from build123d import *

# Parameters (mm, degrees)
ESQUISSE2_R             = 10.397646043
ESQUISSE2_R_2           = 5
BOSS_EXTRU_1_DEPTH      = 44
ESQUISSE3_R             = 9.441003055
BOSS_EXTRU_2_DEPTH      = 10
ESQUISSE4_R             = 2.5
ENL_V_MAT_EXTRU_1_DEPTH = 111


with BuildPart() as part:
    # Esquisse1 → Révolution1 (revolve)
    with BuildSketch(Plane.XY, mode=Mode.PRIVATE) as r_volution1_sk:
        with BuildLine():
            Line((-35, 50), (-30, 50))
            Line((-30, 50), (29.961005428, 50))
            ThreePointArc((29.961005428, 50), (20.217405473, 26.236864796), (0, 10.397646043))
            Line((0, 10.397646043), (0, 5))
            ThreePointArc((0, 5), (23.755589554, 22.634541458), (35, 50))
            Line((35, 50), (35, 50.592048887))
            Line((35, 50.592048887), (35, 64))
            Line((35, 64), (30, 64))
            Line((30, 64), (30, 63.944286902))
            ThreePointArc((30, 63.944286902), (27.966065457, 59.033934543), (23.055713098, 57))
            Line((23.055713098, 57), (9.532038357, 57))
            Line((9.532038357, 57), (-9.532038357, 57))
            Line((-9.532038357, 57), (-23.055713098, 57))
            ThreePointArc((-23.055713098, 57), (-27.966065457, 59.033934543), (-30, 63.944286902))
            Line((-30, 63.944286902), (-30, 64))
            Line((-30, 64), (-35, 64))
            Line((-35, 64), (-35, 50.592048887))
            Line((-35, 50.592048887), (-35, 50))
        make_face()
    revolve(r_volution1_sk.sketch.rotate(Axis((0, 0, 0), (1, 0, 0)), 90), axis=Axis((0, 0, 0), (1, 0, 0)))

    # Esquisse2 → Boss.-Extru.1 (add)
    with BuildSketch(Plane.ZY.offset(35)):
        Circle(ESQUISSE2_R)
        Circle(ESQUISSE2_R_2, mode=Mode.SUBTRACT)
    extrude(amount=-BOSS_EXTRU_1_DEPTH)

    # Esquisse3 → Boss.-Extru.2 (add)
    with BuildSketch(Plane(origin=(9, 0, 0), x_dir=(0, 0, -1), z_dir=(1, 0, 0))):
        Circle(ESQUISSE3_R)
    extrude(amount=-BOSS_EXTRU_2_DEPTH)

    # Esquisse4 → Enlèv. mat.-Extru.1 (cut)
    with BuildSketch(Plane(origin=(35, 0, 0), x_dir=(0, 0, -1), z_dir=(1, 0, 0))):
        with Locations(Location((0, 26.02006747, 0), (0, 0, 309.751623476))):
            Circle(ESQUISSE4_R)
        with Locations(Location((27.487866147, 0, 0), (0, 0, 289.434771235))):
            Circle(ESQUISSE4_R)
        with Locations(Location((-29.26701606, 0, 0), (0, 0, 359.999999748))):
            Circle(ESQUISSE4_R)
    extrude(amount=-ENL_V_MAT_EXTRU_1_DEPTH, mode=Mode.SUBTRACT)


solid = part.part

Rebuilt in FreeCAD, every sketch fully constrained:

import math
import FreeCAD as App
import Part
import Sketcher

doc = App.newDocument("Part")
params = doc.addObject("Spreadsheet::Sheet", "Params")
for row, (alias, value) in enumerate([
    ("sketch1_width", "5 mm"),
    ("sketch1_height", "14 mm"),
    ("revolution_angle", "360 deg"),
    ("sketch2_diameter", "10 mm"),
    ("pad1_length", "44 mm"),
    ("pad2_length", "10 mm"),
    ("sketch4_diameter", "5 mm"),
    ("pocket1_length", "111 mm"),
], start=1):
    params.set(f"A{row}", alias)
    params.set(f"B{row}", "=" + value)
    params.setAlias(f"B{row}", alias)

body = doc.addObject("PartDesign::Body", "Body")

# Sketch on XY plane
sketch1 = body.newObject("Sketcher::SketchObject", "Sketch")
sketch1.AttachmentSupport = (doc.getObject("XY_Plane"), [""])
sketch1.MapMode = "FlatFace"
sketch1.addGeometry(Part.LineSegment(App.Vector(-35, 50, 0), App.Vector(29.96, 50, 0)), False)
sketch1.addGeometry(Part.ArcOfCircle(Part.Circle(App.Vector(-19.84, 56.54, 0), App.Vector(0, 0, 1), 50.22), math.radians(-67), math.radians(-7)), False)
sketch1.addGeometry(Part.LineSegment(App.Vector(0, 10.4, 0), App.Vector(0, 5, 0)), False)
sketch1.addGeometry(Part.ArcOfCircle(Part.Circle(App.Vector(-19.84, 56.54, 0), App.Vector(0, 0, 1), 55.22), math.radians(-69), math.radians(-7)), False)
sketch1.addGeometry(Part.LineSegment(App.Vector(35, 50, 0), App.Vector(35, 64, 0)), False)
sketch1.addGeometry(Part.LineSegment(App.Vector(35, 64, 0), App.Vector(30, 64, 0)), False)
sketch1.addGeometry(Part.LineSegment(App.Vector(30, 64, 0), App.Vector(30, 63.94, 0)), False)
sketch1.addGeometry(Part.ArcOfCircle(Part.Circle(App.Vector(23.06, 63.94, 0), App.Vector(0, 0, 1), 6.94), math.radians(-90), math.radians(0)), False)
sketch1.addGeometry(Part.LineSegment(App.Vector(23.06, 57, 0), App.Vector(-23.06, 57, 0)), False)
sketch1.addGeometry(Part.ArcOfCircle(Part.Circle(App.Vector(-23.06, 63.94, 0), App.Vector(0, 0, 1), 6.94), math.radians(180), math.radians(270)), False)
sketch1.addGeometry(Part.LineSegment(App.Vector(-30, 63.94, 0), App.Vector(-30, 64, 0)), False)
sketch1.addGeometry(Part.LineSegment(App.Vector(-30, 64, 0), App.Vector(-35, 64, 0)), False)
sketch1.addGeometry(Part.LineSegment(App.Vector(-35, 64, 0), App.Vector(-35, 50, 0)), False)
sketch1.addConstraint(Sketcher.Constraint("Coincident", 0, 2, 1, 2))
sketch1.addConstraint(Sketcher.Constraint("Coincident", 1, 1, 2, 1))
sketch1.addConstraint(Sketcher.Constraint("Coincident", 2, 2, 3, 1))
sketch1.addConstraint(Sketcher.Constraint("Coincident", 3, 2, 4, 1))
sketch1.addConstraint(Sketcher.Constraint("Coincident", 4, 2, 5, 1))
sketch1.addConstraint(Sketcher.Constraint("Coincident", 5, 2, 6, 1))
sketch1.addConstraint(Sketcher.Constraint("Tangent", 6, 2, 7, 2))
sketch1.addConstraint(Sketcher.Constraint("Tangent", 7, 1, 8, 1))
sketch1.addConstraint(Sketcher.Constraint("Tangent", 8, 2, 9, 2))
sketch1.addConstraint(Sketcher.Constraint("Tangent", 9, 1, 10, 1))
sketch1.addConstraint(Sketcher.Constraint("Coincident", 10, 2, 11, 1))
sketch1.addConstraint(Sketcher.Constraint("Coincident", 11, 2, 12, 1))
sketch1.addConstraint(Sketcher.Constraint("Coincident", 12, 2, 0, 1))
sketch1.addConstraint(Sketcher.Constraint("Horizontal", 0))
sketch1.addConstraint(Sketcher.Constraint("Vertical", 2))
sketch1.addConstraint(Sketcher.Constraint("Vertical", 4))
sketch1.addConstraint(Sketcher.Constraint("Horizontal", 5))
sketch1.addConstraint(Sketcher.Constraint("Vertical", 6))
sketch1.addConstraint(Sketcher.Constraint("Horizontal", 8))
sketch1.addConstraint(Sketcher.Constraint("Vertical", 10))
sketch1.addConstraint(Sketcher.Constraint("Horizontal", 11))
sketch1.addConstraint(Sketcher.Constraint("Vertical", 12))
sketch1.addConstraint(Sketcher.Constraint("Coincident", 3, 3, 1, 3))
sketch1.addConstraint(Sketcher.Constraint("Equal", 7, 9))
sketch1.addConstraint(Sketcher.Constraint("Symmetric", 5, 2, 10, 2, -2))
sketch1.addConstraint(Sketcher.Constraint("Symmetric", 3, 2, 12, 2, -2))
sketch1.addConstraint(Sketcher.Constraint("PointOnObject", 1, 1, -2))
sketch1.addConstraint(Sketcher.Constraint("DistanceX", 5, 2, 5, 1, 5.0))
sketch1.addConstraint(Sketcher.Constraint("DistanceY", 4, 1, 4, 2, 14.0))
sketch1.addConstraint(Sketcher.Constraint("DistanceY", -1, 1, 0, 2, 50.0))
sketch1.addConstraint(Sketcher.Constraint("DistanceY", -1, 1, 2, 2, 5.0))
sketch1.addConstraint(Sketcher.Constraint("DistanceX", -1, 1, 3, 2, 35.0))
sketch1.addConstraint(Sketcher.Constraint("DistanceY", -1, 1, 7, 1, 57.0))
sketch1.addConstraint(Sketcher.Constraint("Radius", 1, 50.224532))
sketch1.addConstraint(Sketcher.Constraint("Radius", 3, 55.224532))
sketch1.addConstraint(Sketcher.Constraint("Radius", 7, 6.944287))
sketch1.setExpression("Constraints[27]", "Params.sketch1_width")
sketch1.setExpression("Constraints[28]", "Params.sketch1_height")
revolution = body.newObject("PartDesign::Revolution", "Revolution")
revolution.Profile = sketch1
revolution.ReferenceAxis = (sketch1, ["H_Axis"])
revolution.setExpression("Angle", "Params.revolution_angle")

# Sketch on YZ plane
sketch2 = body.newObject("Sketcher::SketchObject", "Sketch001")
sketch2.AttachmentSupport = (doc.getObject("YZ_Plane"), [""])
sketch2.MapMode = "FlatFace"
sketch2.AttachmentOffset = App.Placement(App.Vector(0, 0, -35), App.Rotation())
sketch2.addGeometry(Part.Circle(App.Vector(0, 0, 0), App.Vector(0, 0, 1), 10), False)
sketch2.addGeometry(Part.Circle(App.Vector(0, 0, 0), App.Vector(0, 0, 1), 5), False)
sketch2.addConstraint(Sketcher.Constraint("Coincident", 0, 3, -1, 1))
sketch2.addConstraint(Sketcher.Constraint("Coincident", 1, 3, -1, 1))
sketch2.addConstraint(Sketcher.Constraint("Diameter", 1, 10.0))
sketch2.addConstraint(Sketcher.Constraint("Diameter", 0, 20.795292))
sketch2.setExpression("Constraints[2]", "Params.sketch2_diameter")
pad1 = body.newObject("PartDesign::Pad", "Pad")
pad1.Profile = sketch2
pad1.setExpression("Length", "Params.pad1_length")

# Sketch on YZ plane
sketch3 = body.newObject("Sketcher::SketchObject", "Sketch002")
sketch3.AttachmentSupport = (doc.getObject("YZ_Plane"), [""])
sketch3.MapMode = "FlatFace"
sketch3.AttachmentOffset = App.Placement(App.Vector(0, 0, 9), App.Rotation())
sketch3.addGeometry(Part.Circle(App.Vector(0, 0, 0), App.Vector(0, 0, 1), 9), False)
sketch3.addConstraint(Sketcher.Constraint("Coincident", 0, 3, -1, 1))
sketch3.addConstraint(Sketcher.Constraint("Diameter", 0, 18.882006))
pad2 = body.newObject("PartDesign::Pad", "Pad001")
pad2.Profile = sketch3
pad2.setExpression("Length", "Params.pad2_length")
pad2.Reversed = True

# Sketch on YZ plane
sketch4 = body.newObject("Sketcher::SketchObject", "Sketch003")
sketch4.AttachmentSupport = (doc.getObject("YZ_Plane"), [""])
sketch4.MapMode = "FlatFace"
sketch4.AttachmentOffset = App.Placement(App.Vector(0, 0, 35), App.Rotation())
sketch4.addGeometry(Part.Circle(App.Vector(26, 0, 0), App.Vector(0, 0, 1), 2.5), False)
sketch4.addGeometry(Part.Circle(App.Vector(0, -27.5, 0), App.Vector(0, 0, 1), 2.5), False)
sketch4.addGeometry(Part.Circle(App.Vector(0, 29.3, 0), App.Vector(0, 0, 1), 2.5), False)
sketch4.addConstraint(Sketcher.Constraint("Equal", 0, 1))
sketch4.addConstraint(Sketcher.Constraint("Equal", 1, 2))
sketch4.addConstraint(Sketcher.Constraint("PointOnObject", 0, 3, -1))
sketch4.addConstraint(Sketcher.Constraint("PointOnObject", 1, 3, -2))
sketch4.addConstraint(Sketcher.Constraint("PointOnObject", 2, 3, -2))
sketch4.addConstraint(Sketcher.Constraint("Diameter", 0, 5.0))
sketch4.addConstraint(Sketcher.Constraint("DistanceX", -1, 1, 0, 3, 26.020067))
sketch4.addConstraint(Sketcher.Constraint("DistanceY", 1, 3, -1, 1, 27.487866))
sketch4.addConstraint(Sketcher.Constraint("DistanceY", -1, 1, 2, 3, 29.267016))
sketch4.setExpression("Constraints[5]", "Params.sketch4_diameter")
pocket1 = body.newObject("PartDesign::Pocket", "Pocket")
pocket1.Profile = sketch4
pocket1.setExpression("Length", "Params.pocket1_length")

doc.recompute()
